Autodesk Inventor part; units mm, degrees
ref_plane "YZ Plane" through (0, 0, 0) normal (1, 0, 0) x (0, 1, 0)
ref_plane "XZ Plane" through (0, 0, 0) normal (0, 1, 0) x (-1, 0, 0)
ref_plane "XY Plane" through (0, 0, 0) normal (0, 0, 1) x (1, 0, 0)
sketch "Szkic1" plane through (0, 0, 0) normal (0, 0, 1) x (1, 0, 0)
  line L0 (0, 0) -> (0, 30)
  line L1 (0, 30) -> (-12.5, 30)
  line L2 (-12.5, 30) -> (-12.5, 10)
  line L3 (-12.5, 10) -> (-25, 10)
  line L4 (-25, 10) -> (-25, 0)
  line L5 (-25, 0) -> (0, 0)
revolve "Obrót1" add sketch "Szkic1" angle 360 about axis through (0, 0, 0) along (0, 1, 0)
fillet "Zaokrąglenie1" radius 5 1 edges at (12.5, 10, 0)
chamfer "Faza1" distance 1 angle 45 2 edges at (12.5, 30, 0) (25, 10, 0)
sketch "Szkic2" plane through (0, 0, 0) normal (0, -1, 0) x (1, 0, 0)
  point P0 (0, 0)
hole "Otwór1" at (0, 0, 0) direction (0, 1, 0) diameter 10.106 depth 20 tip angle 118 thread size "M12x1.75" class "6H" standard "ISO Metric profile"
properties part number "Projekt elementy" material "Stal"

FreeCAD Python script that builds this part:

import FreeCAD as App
import Part
import Sketcher

V = App.Vector


def edges_at(feature, points):
    """Names of the edges that pass closest to the given points."""
    edges = feature.Shape.Edges
    near = lambda p: min(range(len(edges)), key=lambda i: edges[i].distToShape(Part.Vertex(*p))[0])
    return sorted({f"Edge{near(p) + 1}" for p in points})

doc = App.newDocument("Part")
body = doc.addObject("PartDesign::Body", "Body")

# Sketch on XY plane
sketch1 = doc.addObject("Sketcher::SketchObject", "Sketch")
body.addObject(sketch1)
sketch1.AttachmentSupport = (doc.XY_Plane, [""])
sketch1.MapMode = "FlatFace"
sketch1.addGeometry([
    Part.LineSegment(V(-25, 0, 0), V(0, 0, 0)),  # 0
    Part.LineSegment(V(0, 0, 0), V(0, 30, 0)),  # 1
    Part.LineSegment(V(0, 30, 0), V(-12, 30, 0)),  # 2
    Part.LineSegment(V(-12, 30, 0), V(-12, 10, 0)),  # 3
    Part.LineSegment(V(-12, 10, 0), V(-25, 10, 0)),  # 4
    Part.LineSegment(V(-25, 10, 0), V(-25, 0, 0)),  # 5
], False)
sketch1.addConstraint([
    Sketcher.Constraint("Coincident", 0, 2, 1, 1),
    Sketcher.Constraint("Coincident", 1, 2, 2, 1),
    Sketcher.Constraint("Coincident", 2, 2, 3, 1),
    Sketcher.Constraint("Coincident", 3, 2, 4, 1),
    Sketcher.Constraint("Coincident", 4, 2, 5, 1),
    Sketcher.Constraint("Coincident", 5, 2, 0, 1),
    Sketcher.Constraint("Horizontal", 0),
    Sketcher.Constraint("Vertical", 1),
    Sketcher.Constraint("Horizontal", 2),
    Sketcher.Constraint("Vertical", 3),
    Sketcher.Constraint("Horizontal", 4),
    Sketcher.Constraint("Vertical", 5),
    Sketcher.Constraint("Coincident", 0, 2, -1, 1),
    Sketcher.Constraint("Equal", 2, 4),
    Sketcher.Constraint("DistanceX", 0, 1, 0, 2, 25.0),
    Sketcher.Constraint("DistanceY", 1, 1, 1, 2, 30.0),
    Sketcher.Constraint("DistanceY", 3, 2, 3, 1, 20.0),
])
revolution = doc.addObject("PartDesign::Revolution", "Revolution")
body.addObject(revolution)
revolution.Profile = sketch1
revolution.ReferenceAxis = (sketch1, ["V_Axis"])
revolution.Angle = 360
doc.recompute()

fillet = doc.addObject("PartDesign::Fillet", "Fillet")
body.addObject(fillet)
fillet.Base = (revolution, edges_at(revolution, [(12.5, 10, 0)]))
fillet.Radius = 5
doc.recompute()

chamfer = doc.addObject("PartDesign::Chamfer", "Chamfer")
body.addObject(chamfer)
chamfer.Base = (fillet, edges_at(fillet, [(12.5, 30, 0), (25, 10, 0)]))
chamfer.Size = 1

# Sketch on XZ plane
sketch2 = doc.addObject("Sketcher::SketchObject", "Sketch001")
body.addObject(sketch2)
sketch2.AttachmentSupport = (doc.XZ_Plane, [""])
sketch2.MapMode = "FlatFace"
sketch2.addGeometry(Part.Circle(V(0, 0, 0), V(0, 0, 1), 5), False)
sketch2.addConstraint([
    Sketcher.Constraint("Coincident", 0, 3, -1, 1),
    Sketcher.Constraint("Diameter", 0, 10.106),
])
doc.recompute()
hole = doc.addObject("PartDesign::Hole", "Hole")
body.addObject(hole)
hole.Profile = sketch2
hole.ThreadType = "None"
hole.Diameter = 10.106
hole.DepthType = "Dimension"
hole.Depth = 20
hole.DrillPoint = "Angled"
hole.DrillPointAngle = 118

doc.recompute()
